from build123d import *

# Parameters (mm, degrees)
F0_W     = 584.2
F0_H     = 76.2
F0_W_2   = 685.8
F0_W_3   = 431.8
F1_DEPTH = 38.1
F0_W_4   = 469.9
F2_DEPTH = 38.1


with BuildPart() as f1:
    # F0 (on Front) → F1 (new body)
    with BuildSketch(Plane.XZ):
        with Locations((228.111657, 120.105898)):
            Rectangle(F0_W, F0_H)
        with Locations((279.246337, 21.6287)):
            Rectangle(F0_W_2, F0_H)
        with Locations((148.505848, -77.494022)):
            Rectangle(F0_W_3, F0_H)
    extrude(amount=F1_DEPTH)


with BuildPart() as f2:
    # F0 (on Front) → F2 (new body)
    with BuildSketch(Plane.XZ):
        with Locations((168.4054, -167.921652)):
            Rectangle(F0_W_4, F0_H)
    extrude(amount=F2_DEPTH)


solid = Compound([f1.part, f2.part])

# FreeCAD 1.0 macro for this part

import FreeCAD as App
import Part
import Sketcher
from FreeCAD import Vector
Q = App.Units.Quantity


def add_polygon(sketch, points):
    """Adds a closed chain of lines whose ends are joined by coincident constraints."""
    first, n = sketch.GeometryCount, len(points)
    for a, b in zip(points, points[1:] + points[:1]):
        sketch.addGeometry(Part.LineSegment(App.Vector(*a, 0), App.Vector(*b, 0)), False)
    for i in range(n):
        sketch.addConstraint(Sketcher.Constraint("Coincident", first + i, 2, first + (i + 1) % n, 1))

doc = App.newDocument("Part")
body = doc.addObject("PartDesign::Body", "Body")
body.AllowCompound = True

# Sketch on XZ plane
sketch1 = body.newObject("Sketcher::SketchObject", "Sketch")
sketch1.AttachmentSupport = (doc.getObject("XZ_Plane"), [""])
sketch1.MapMode = "FlatFace"
add_polygon(sketch1, [(-64, 158), (-64, 82), (520, 82), (520, 158)])  # lines 0-3
add_polygon(sketch1, [(-64, 60), (-64, -16), (622, -16), (622, 60)])  # lines 4-7
add_polygon(sketch1, [(-67, -39), (-67, -116), (364, -116), (364, -39)])  # lines 8-11
sketch1.addConstraint(Sketcher.Constraint("Vertical", 0))
sketch1.addConstraint(Sketcher.Constraint("Horizontal", 1))
sketch1.addConstraint(Sketcher.Constraint("Vertical", 2))
sketch1.addConstraint(Sketcher.Constraint("Horizontal", 3))
sketch1.addConstraint(Sketcher.Constraint("Vertical", 4))
sketch1.addConstraint(Sketcher.Constraint("Horizontal", 5))
sketch1.addConstraint(Sketcher.Constraint("Vertical", 6))
sketch1.addConstraint(Sketcher.Constraint("Horizontal", 7))
sketch1.addConstraint(Sketcher.Constraint("Vertical", 8))
sketch1.addConstraint(Sketcher.Constraint("Horizontal", 9))
sketch1.addConstraint(Sketcher.Constraint("Vertical", 10))
sketch1.addConstraint(Sketcher.Constraint("Horizontal", 11))
sketch1.addConstraint(Sketcher.Constraint("Equal", 2, 4))
sketch1.addConstraint(Sketcher.Constraint("Equal", 6, 8))
sketch1.addConstraint(Sketcher.Constraint("DistanceX", 1, 1, 1, 2, Q("23 in")))
sketch1.addConstraint(Sketcher.Constraint("DistanceX", 5, 1, 5, 2, Q("27 in")))
sketch1.addConstraint(Sketcher.Constraint("DistanceX", 9, 1, 9, 2, Q("17 in")))
sketch1.addConstraint(Sketcher.Constraint("DistanceY", 0, 2, 0, 1, Q("3 in")))
sketch1.addConstraint(Sketcher.Constraint("DistanceY", -1, 1, 0, 2, 82.005898))
sketch1.addConstraint(Sketcher.Constraint("DistanceY", 4, 2, -1, 1, 16.4713))
sketch1.addConstraint(Sketcher.Constraint("DistanceY", 8, 2, -1, 1, 115.594022))
sketch1.addConstraint(Sketcher.Constraint("DistanceX", -1, 1, 9, 2, 364.405848))
sketch1.addConstraint(Sketcher.Constraint("DistanceX", 0, 2, 4, 2, 0.33468))
sketch1.addConstraint(Sketcher.Constraint("DistanceX", 8, 2, 4, 2, 3.740489))
pad1 = body.newObject("PartDesign::Pad", "Pad")
pad1.Profile = sketch1
pad1.Length = Q("1.5 in")
body2 = doc.addObject("PartDesign::Body", "Body001")

# Sketch on XZ plane
sketch2 = body2.newObject("Sketcher::SketchObject", "Sketch001")
sketch2.AttachmentSupport = (doc.getObject("XZ_Plane001"), [""])
sketch2.MapMode = "FlatFace"
add_polygon(sketch2, [(-67, -130), (-67, -206), (403, -206), (403, -130)])  # lines 0-3
sketch2.addConstraint(Sketcher.Constraint("Vertical", 0))
sketch2.addConstraint(Sketcher.Constraint("Horizontal", 1))
sketch2.addConstraint(Sketcher.Constraint("Vertical", 2))
sketch2.addConstraint(Sketcher.Constraint("Horizontal", 3))
sketch2.addConstraint(Sketcher.Constraint("DistanceY", 0, 2, 0, 1, Q("3 in")))
sketch2.addConstraint(Sketcher.Constraint("DistanceX", 1, 1, 1, 2, Q("18.5 in")))
sketch2.addConstraint(Sketcher.Constraint("DistanceX", 0, 2, -1, 1, 66.5446))
sketch2.addConstraint(Sketcher.Constraint("DistanceY", 0, 2, -1, 1, 206.021652))
pad2 = body2.newObject("PartDesign::Pad", "Pad001")
pad2.Profile = sketch2
pad2.Length = Q("1.5 in")

doc.recompute()
